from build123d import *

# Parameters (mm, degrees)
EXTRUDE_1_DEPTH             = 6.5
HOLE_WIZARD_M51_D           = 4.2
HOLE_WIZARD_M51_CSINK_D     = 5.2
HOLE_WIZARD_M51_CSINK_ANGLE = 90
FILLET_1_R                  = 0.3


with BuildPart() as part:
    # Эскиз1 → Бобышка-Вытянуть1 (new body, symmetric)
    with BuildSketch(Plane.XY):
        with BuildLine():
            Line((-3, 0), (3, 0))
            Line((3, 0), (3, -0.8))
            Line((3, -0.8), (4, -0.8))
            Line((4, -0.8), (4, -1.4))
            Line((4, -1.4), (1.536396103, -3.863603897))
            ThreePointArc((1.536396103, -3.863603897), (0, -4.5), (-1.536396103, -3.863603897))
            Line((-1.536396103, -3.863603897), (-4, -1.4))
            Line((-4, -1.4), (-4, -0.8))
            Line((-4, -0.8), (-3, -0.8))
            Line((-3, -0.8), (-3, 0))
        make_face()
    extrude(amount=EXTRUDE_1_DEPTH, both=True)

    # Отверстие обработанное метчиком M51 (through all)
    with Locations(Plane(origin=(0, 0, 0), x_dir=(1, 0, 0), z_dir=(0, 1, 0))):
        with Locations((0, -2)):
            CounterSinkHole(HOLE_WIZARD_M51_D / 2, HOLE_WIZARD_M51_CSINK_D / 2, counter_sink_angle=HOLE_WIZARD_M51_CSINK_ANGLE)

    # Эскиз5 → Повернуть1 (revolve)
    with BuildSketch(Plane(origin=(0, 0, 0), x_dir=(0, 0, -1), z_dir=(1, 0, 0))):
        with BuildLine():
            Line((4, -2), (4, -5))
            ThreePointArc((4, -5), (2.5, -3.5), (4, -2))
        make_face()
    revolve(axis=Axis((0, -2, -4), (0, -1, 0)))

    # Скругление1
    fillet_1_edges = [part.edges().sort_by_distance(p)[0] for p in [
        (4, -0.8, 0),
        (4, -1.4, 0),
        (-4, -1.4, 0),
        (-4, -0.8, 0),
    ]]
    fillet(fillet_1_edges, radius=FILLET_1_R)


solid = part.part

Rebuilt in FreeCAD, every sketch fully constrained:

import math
import FreeCAD as App
import Part
import Sketcher
Q = App.Units.Quantity


def edges_at(feature, points):
    """Names of the edges that pass closest to the given points."""
    edges = feature.Shape.Edges
    near = lambda p: min(range(len(edges)), key=lambda i: edges[i].distToShape(Part.Vertex(*p))[0])
    return sorted({f"Edge{near(p) + 1}" for p in points})

doc = App.newDocument("Part")
body = doc.addObject("PartDesign::Body", "Body")

# Sketch on XY plane
sketch1 = doc.addObject("Sketcher::SketchObject", "Sketch")
body.addObject(sketch1)
sketch1.AttachmentSupport = (doc.XY_Plane, [""])
sketch1.MapMode = "FlatFace"
sketch1.addGeometry([
    Part.LineSegment(App.Vector(3, 0, 0), App.Vector(-3, 0, 0)),  # 0
    Part.LineSegment(App.Vector(-3, 0, 0), App.Vector(-3, -0.8, 0)),  # 1
    Part.LineSegment(App.Vector(-3, -0.8, 0), App.Vector(-4, -0.8, 0)),  # 2
    Part.LineSegment(App.Vector(-4, -0.8, 0), App.Vector(-4, -1.4, 0)),  # 3
    Part.LineSegment(App.Vector(-4, -1.4, 0), App.Vector(-1.5, -3.9, 0)),  # 4
    Part.ArcOfCircle(Part.Circle(App.Vector(0, -2.3, 0), App.Vector(0, 0, 1), 2.2), math.radians(-135), math.radians(-45)),  # 5
    Part.LineSegment(App.Vector(1.5, -3.9, 0), App.Vector(4, -1.4, 0)),  # 6
    Part.LineSegment(App.Vector(4, -1.4, 0), App.Vector(4, -0.8, 0)),  # 7
    Part.LineSegment(App.Vector(4, -0.8, 0), App.Vector(3, -0.8, 0)),  # 8
    Part.LineSegment(App.Vector(3, -0.8, 0), App.Vector(3, 0, 0)),  # 9
], False)
sketch1.addConstraint([
    Sketcher.Constraint("Coincident", 0, 2, 1, 1),
    Sketcher.Constraint("Coincident", 1, 2, 2, 1),
    Sketcher.Constraint("Coincident", 2, 2, 3, 1),
    Sketcher.Constraint("Coincident", 3, 2, 4, 1),
    Sketcher.Constraint("Tangent", 4, 2, 5, 1),
    Sketcher.Constraint("Tangent", 5, 2, 6, 1),
    Sketcher.Constraint("Coincident", 6, 2, 7, 1),
    Sketcher.Constraint("Coincident", 7, 2, 8, 1),
    Sketcher.Constraint("Coincident", 8, 2, 9, 1),
    Sketcher.Constraint("Coincident", 9, 2, 0, 1),
    Sketcher.Constraint("Horizontal", 0),
    Sketcher.Constraint("Vertical", 1),
    Sketcher.Constraint("Horizontal", 2),
    Sketcher.Constraint("Vertical", 3),
    Sketcher.Constraint("Vertical", 7),
    Sketcher.Constraint("Horizontal", 8),
    Sketcher.Constraint("Vertical", 9),
    Sketcher.Constraint("Symmetric", 0, 2, 9, 2, -1, 1),
    Sketcher.Constraint("Symmetric", 4, 2, 5, 2, -2),
    Sketcher.Constraint("Symmetric", 2, 2, 7, 2, -2),
    Sketcher.Constraint("Perpendicular", 4, 6),
    Sketcher.Constraint("DistanceX", 0, 2, 0, 1, Q("6 mm")),
    Sketcher.Constraint("DistanceX", 2, 2, 2, 1, Q("1 mm")),
    Sketcher.Constraint("DistanceY", 1, 2, 1, 1, Q("0.8 mm")),
    Sketcher.Constraint("DistanceY", 3, 2, 3, 1, Q("0.6 mm")),
    Sketcher.Constraint("Radius", 5, Q("2.172792 mm")),
])
pad1 = doc.addObject("PartDesign::Pad", "Pad")
body.addObject(pad1)
pad1.Profile = sketch1
pad1.Length = 13
pad1.Midplane = True

# Sketch on XZ plane
sketch2 = doc.addObject("Sketcher::SketchObject", "Sketch001")
body.addObject(sketch2)
sketch2.AttachmentSupport = (doc.XZ_Plane, [""])
sketch2.MapMode = "FlatFace"
sketch2.addGeometry(Part.Circle(App.Vector(0, 2, 0), App.Vector(0, 0, 1), 2.1), False)
sketch2.addConstraint([
    Sketcher.Constraint("PointOnObject", 0, 3, -2),
    Sketcher.Constraint("Diameter", 0, Q("4.2 mm")),
    Sketcher.Constraint("DistanceY", -1, 1, 0, 3, Q("2 mm")),
])
doc.recompute()
hole = doc.addObject("PartDesign::Hole", "Hole")
body.addObject(hole)
hole.Profile = sketch2
hole.ThreadType = "None"
hole.Diameter = 4.2
hole.DepthType = "ThroughAll"
hole.HoleCutType = "Countersink"
hole.HoleCutDiameter = 5.2
hole.HoleCutCountersinkAngle = 90
hole.Reversed = True

# Sketch on YZ plane
sketch3 = doc.addObject("Sketcher::SketchObject", "Sketch002")
body.addObject(sketch3)
sketch3.AttachmentSupport = (doc.YZ_Plane, [""])
sketch3.MapMode = "FlatFace"
sketch3.addGeometry([
    Part.LineSegment(App.Vector(-5, -4, 0), App.Vector(-2, -4, 0)),
    Part.ArcOfCircle(Part.Circle(App.Vector(-3.5, -4, 0), App.Vector(0, 0, 1), 1.5), math.radians(0), math.radians(180)),
], False)
sketch3.addGeometry(Part.LineSegment(App.Vector(-2, -4, 0), App.Vector(-5, -4, 0)), True)  # axis
sketch3.addConstraint([
    Sketcher.Constraint("Coincident", 0, 1, 1, 2),
    Sketcher.Constraint("Coincident", 1, 1, 0, 2),
    Sketcher.Constraint("Horizontal", 0),
    Sketcher.Constraint("Horizontal", 2),
    Sketcher.Constraint("Coincident", 2, 1, 1, 1),
    Sketcher.Constraint("Horizontal", 1, 3, 0, 1),
    Sketcher.Constraint("Equal", 0, 2),
    Sketcher.Constraint("Radius", 1, Q("1.5 mm")),
    Sketcher.Constraint("DistanceY", 1, 3, -1, 1, Q("4 mm")),
    Sketcher.Constraint("DistanceX", 0, 1, -1, 1, Q("5 mm")),
])
revolution = doc.addObject("PartDesign::Revolution", "Revolution")
body.addObject(revolution)
revolution.Profile = sketch3
revolution.ReferenceAxis = (sketch3, ["Axis0"])
revolution.Angle = 360
doc.recompute()

fillet = doc.addObject("PartDesign::Fillet", "Fillet")
body.addObject(fillet)
fillet.Base = (revolution, edges_at(revolution, [
    (4, -0.8, 0),
    (4, -1.4, 0),
    (-4, -1.4, 0),
    (-4, -0.8, 0),
]))
fillet.Radius = 0.3

doc.recompute()
